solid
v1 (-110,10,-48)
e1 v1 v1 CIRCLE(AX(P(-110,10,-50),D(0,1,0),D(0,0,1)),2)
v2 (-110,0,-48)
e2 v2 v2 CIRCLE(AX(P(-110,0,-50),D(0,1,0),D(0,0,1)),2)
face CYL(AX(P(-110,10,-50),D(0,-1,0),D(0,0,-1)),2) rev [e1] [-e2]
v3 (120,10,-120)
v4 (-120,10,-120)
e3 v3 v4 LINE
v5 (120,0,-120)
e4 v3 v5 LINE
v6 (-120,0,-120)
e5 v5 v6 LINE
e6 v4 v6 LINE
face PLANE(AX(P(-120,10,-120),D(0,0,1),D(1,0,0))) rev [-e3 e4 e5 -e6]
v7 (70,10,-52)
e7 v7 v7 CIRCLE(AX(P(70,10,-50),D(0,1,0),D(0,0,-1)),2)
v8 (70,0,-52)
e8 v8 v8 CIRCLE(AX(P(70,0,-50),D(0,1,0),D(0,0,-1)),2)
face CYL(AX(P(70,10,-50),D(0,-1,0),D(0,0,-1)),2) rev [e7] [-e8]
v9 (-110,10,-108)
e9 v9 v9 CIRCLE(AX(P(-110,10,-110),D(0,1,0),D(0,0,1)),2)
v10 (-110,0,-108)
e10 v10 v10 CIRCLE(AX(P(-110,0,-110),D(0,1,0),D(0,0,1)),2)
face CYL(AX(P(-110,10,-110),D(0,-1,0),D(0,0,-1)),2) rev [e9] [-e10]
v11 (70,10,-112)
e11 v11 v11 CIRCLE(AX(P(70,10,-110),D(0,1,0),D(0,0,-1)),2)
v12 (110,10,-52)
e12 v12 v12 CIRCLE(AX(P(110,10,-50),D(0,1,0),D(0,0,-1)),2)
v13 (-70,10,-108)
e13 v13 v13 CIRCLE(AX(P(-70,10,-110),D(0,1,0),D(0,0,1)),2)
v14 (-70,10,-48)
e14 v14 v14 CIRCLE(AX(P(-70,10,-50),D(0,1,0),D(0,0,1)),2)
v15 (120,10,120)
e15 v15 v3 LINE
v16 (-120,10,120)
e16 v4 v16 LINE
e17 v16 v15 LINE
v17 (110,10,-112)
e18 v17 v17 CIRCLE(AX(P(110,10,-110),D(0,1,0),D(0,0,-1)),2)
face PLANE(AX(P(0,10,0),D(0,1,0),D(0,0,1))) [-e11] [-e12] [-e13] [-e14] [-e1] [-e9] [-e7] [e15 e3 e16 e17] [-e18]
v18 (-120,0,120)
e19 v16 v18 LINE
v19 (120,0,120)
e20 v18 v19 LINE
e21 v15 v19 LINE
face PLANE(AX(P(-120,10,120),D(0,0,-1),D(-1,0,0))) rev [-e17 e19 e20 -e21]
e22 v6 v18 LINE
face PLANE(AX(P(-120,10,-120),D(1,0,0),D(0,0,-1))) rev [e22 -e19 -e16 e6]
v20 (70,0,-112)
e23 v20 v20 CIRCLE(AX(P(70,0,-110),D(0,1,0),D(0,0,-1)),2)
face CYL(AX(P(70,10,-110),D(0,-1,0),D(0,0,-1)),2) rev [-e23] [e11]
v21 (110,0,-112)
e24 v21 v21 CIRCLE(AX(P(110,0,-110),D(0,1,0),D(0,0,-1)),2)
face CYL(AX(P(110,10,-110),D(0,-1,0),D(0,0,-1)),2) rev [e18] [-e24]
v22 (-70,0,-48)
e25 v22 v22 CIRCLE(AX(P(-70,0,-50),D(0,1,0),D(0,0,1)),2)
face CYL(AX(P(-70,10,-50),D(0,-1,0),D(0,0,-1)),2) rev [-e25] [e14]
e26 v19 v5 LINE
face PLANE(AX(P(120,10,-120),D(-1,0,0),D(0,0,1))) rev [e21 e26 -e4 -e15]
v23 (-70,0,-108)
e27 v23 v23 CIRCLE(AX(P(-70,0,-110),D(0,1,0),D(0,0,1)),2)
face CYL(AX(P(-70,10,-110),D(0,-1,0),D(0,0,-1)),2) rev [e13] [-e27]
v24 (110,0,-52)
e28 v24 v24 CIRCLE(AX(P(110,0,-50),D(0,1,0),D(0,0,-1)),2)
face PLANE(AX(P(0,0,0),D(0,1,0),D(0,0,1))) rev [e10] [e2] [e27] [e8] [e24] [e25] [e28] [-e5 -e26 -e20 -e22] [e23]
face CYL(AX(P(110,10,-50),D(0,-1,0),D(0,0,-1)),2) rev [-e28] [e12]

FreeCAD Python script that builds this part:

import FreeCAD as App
import Part
import Sketcher


def add_polygon(sketch, points):
    """Adds a closed chain of lines whose ends are joined by coincident constraints."""
    first, n = sketch.GeometryCount, len(points)
    for a, b in zip(points, points[1:] + points[:1]):
        sketch.addGeometry(Part.LineSegment(App.Vector(*a, 0), App.Vector(*b, 0)), False)
    for i in range(n):
        sketch.addConstraint(Sketcher.Constraint("Coincident", first + i, 2, first + (i + 1) % n, 1))

doc = App.newDocument("Part")
body = doc.addObject("PartDesign::Body", "Body")

sketch1 = body.newObject("Sketcher::SketchObject", "Sketch")
sketch1.AttachmentSupport = (doc.getObject("XZ_Plane"), [""])
sketch1.MapMode = "FlatFace"
add_polygon(sketch1, [(-120, -120), (-120, 120), (120, 120), (120, -120)])
sketch1.addGeometry(Part.Circle(App.Vector(-110, -50, 0), App.Vector(0, 0, 1), 2), False)
sketch1.addGeometry(Part.Circle(App.Vector(-70, -50, 0), App.Vector(0, 0, 1), 2), False)
sketch1.addGeometry(Part.Circle(App.Vector(70, -50, 0), App.Vector(0, 0, 1), 2), False)
sketch1.addGeometry(Part.Circle(App.Vector(110, -50, 0), App.Vector(0, 0, 1), 2), False)
sketch1.addGeometry(Part.Circle(App.Vector(-110, -110, 0), App.Vector(0, 0, 1), 2), False)
sketch1.addGeometry(Part.Circle(App.Vector(-70, -110, 0), App.Vector(0, 0, 1), 2), False)
sketch1.addGeometry(Part.Circle(App.Vector(70, -110, 0), App.Vector(0, 0, 1), 2), False)
sketch1.addGeometry(Part.Circle(App.Vector(110, -110, 0), App.Vector(0, 0, 1), 2), False)
sketch1.addConstraint(Sketcher.Constraint("Vertical", 0))
sketch1.addConstraint(Sketcher.Constraint("Horizontal", 1))
sketch1.addConstraint(Sketcher.Constraint("Vertical", 2))
sketch1.addConstraint(Sketcher.Constraint("Horizontal", 3))
sketch1.addConstraint(Sketcher.Constraint("Equal", 4, 5))
sketch1.addConstraint(Sketcher.Constraint("Equal", 5, 6))
sketch1.addConstraint(Sketcher.Constraint("Equal", 6, 7))
sketch1.addConstraint(Sketcher.Constraint("Equal", 7, 8))
sketch1.addConstraint(Sketcher.Constraint("Equal", 8, 9))
sketch1.addConstraint(Sketcher.Constraint("Equal", 9, 10))
sketch1.addConstraint(Sketcher.Constraint("Equal", 10, 11))
sketch1.addConstraint(Sketcher.Constraint("Symmetric", 0, 2, 2, 2, -1, 1))
sketch1.addConstraint(Sketcher.Constraint("Symmetric", 5, 3, 6, 3, -2))
sketch1.addConstraint(Sketcher.Constraint("Symmetric", 4, 3, 7, 3, -2))
sketch1.addConstraint(Sketcher.Constraint("Symmetric", 9, 3, 10, 3, -2))
sketch1.addConstraint(Sketcher.Constraint("Symmetric", 8, 3, 11, 3, -2))
sketch1.addConstraint(Sketcher.Constraint("Horizontal", 4, 3, 5, 3))
sketch1.addConstraint(Sketcher.Constraint("Horizontal", 8, 3, 9, 3))
sketch1.addConstraint(Sketcher.Constraint("Vertical", 4, 3, 8, 3))
sketch1.addConstraint(Sketcher.Constraint("Vertical", 5, 3, 9, 3))
sketch1.addConstraint(Sketcher.Constraint("Equal", 3, 0))
sketch1.addConstraint(Sketcher.Constraint("Diameter", 4, 4.0))
sketch1.addConstraint(Sketcher.Constraint("DistanceX", 1, 1, 1, 2, 240.0))
sketch1.addConstraint(Sketcher.Constraint("DistanceX", 4, 3, -1, 1, 110.0))
sketch1.addConstraint(Sketcher.Constraint("DistanceY", 4, 3, -1, 1, 50.0))
sketch1.addConstraint(Sketcher.Constraint("DistanceX", 5, 3, -1, 1, 70.0))
sketch1.addConstraint(Sketcher.Constraint("DistanceY", 8, 3, -1, 1, 110.0))
pad1 = body.newObject("PartDesign::Pad", "Pad")
pad1.Profile = sketch1
pad1.Length = 10
pad1.Reversed = True

doc.recompute()
